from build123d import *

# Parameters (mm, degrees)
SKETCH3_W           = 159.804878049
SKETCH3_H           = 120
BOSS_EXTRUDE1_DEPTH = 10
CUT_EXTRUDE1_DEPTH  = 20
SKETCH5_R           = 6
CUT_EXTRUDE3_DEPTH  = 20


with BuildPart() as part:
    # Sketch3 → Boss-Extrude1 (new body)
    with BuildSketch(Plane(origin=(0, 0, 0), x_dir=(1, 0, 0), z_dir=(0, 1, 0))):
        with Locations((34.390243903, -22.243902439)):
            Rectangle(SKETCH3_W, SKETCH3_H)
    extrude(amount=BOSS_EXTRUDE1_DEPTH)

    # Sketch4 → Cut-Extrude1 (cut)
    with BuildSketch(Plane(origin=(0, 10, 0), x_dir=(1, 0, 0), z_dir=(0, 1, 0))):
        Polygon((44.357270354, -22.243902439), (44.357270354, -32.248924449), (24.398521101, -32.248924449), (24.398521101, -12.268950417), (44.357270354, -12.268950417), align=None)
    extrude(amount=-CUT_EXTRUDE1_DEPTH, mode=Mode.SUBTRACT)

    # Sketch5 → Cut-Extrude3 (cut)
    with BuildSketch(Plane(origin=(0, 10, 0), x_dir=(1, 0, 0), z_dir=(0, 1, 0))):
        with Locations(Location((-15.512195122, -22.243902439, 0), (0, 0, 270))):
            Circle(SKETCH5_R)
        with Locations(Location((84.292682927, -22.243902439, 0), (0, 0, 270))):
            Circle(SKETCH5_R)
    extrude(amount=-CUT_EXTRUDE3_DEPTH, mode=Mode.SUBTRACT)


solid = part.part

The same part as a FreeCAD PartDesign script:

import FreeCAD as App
import Part
import Sketcher
Q = App.Units.Quantity

doc = App.newDocument("Part")
params = doc.addObject("Spreadsheet::Sheet", "Params")
for row, (alias, value) in enumerate([
    ("sketch1_height", "120 mm"),
    ("pad1_length", "10 mm"),
    ("pocket1_length", "20 mm"),
    ("sketch3_diameter", "12 mm"),
    ("pocket2_length", "20 mm"),
], start=1):
    params.set(f"A{row}", alias)
    params.set(f"B{row}", "=" + value)
    params.setAlias(f"B{row}", alias)

body = doc.addObject("PartDesign::Body", "Body")

# Sketch on XZ plane
sketch1 = body.newObject("Sketcher::SketchObject", "Sketch")
sketch1.AttachmentSupport = (doc.getObject("XZ_Plane"), [""])
sketch1.MapMode = "FlatFace"
sketch1.addGeometry([
    Part.LineSegment(App.Vector(-46, -38, 0), App.Vector(-46, 82, 0)),
    Part.LineSegment(App.Vector(-46, 82, 0), App.Vector(114, 82, 0)),
    Part.LineSegment(App.Vector(114, 82, 0), App.Vector(114, -38, 0)),
    Part.LineSegment(App.Vector(114, -38, 0), App.Vector(-46, -38, 0)),
], False)
sketch1.addConstraint([
    Sketcher.Constraint("Coincident", 0, 2, 1, 1),
    Sketcher.Constraint("Coincident", 1, 2, 2, 1),
    Sketcher.Constraint("Coincident", 2, 2, 3, 1),
    Sketcher.Constraint("Coincident", 3, 2, 0, 1),
    Sketcher.Constraint("Vertical", 0),
    Sketcher.Constraint("Horizontal", 1),
    Sketcher.Constraint("Vertical", 2),
    Sketcher.Constraint("Horizontal", 3),
    Sketcher.Constraint("DistanceY", 0, 1, 0, 2, Q("120 mm")),
    Sketcher.Constraint("DistanceX", 1, 1, 1, 2, Q("159.804878 mm")),
    Sketcher.Constraint("DistanceX", 0, 2, -1, 1, Q("45.512195 mm")),
    Sketcher.Constraint("DistanceY", -1, 1, 0, 2, Q("82.243902 mm")),
])
sketch1.setExpression("Constraints[8]", "Params.sketch1_height")
pad1 = body.newObject("PartDesign::Pad", "Pad")
pad1.Profile = sketch1
pad1.setExpression("Length", "Params.pad1_length")
pad1.Reversed = True

# Sketch on XZ plane
sketch2 = body.newObject("Sketcher::SketchObject", "Sketch001")
sketch2.AttachmentSupport = (doc.getObject("XZ_Plane"), [""])
sketch2.MapMode = "FlatFace"
sketch2.AttachmentOffset = App.Placement(App.Vector(0, 0, -10), App.Rotation())
sketch2.addGeometry([
    Part.LineSegment(App.Vector(44, 32, 0), App.Vector(44, 12, 0)),
    Part.LineSegment(App.Vector(44, 12, 0), App.Vector(24, 12, 0)),
    Part.LineSegment(App.Vector(24, 12, 0), App.Vector(24, 32, 0)),
    Part.LineSegment(App.Vector(24, 32, 0), App.Vector(44, 32, 0)),
], False)
sketch2.addConstraint([
    Sketcher.Constraint("Coincident", 0, 2, 1, 1),
    Sketcher.Constraint("Coincident", 1, 2, 2, 1),
    Sketcher.Constraint("Coincident", 2, 2, 3, 1),
    Sketcher.Constraint("Coincident", 3, 2, 0, 1),
    Sketcher.Constraint("Vertical", 0),
    Sketcher.Constraint("Horizontal", 1),
    Sketcher.Constraint("Vertical", 2),
    Sketcher.Constraint("Horizontal", 3),
    Sketcher.Constraint("DistanceX", 1, 2, 1, 1, Q("19.958749 mm")),
    Sketcher.Constraint("DistanceY", 0, 2, 0, 1, Q("19.979974 mm")),
    Sketcher.Constraint("DistanceX", -1, 1, 0, 2, Q("44.35727 mm")),
    Sketcher.Constraint("DistanceY", -1, 1, 0, 2, Q("12.26895 mm")),
])
pocket1 = body.newObject("PartDesign::Pocket", "Pocket")
pocket1.Profile = sketch2
pocket1.setExpression("Length", "Params.pocket1_length")
pocket1.Reversed = True

# Sketch on XZ plane
sketch3 = body.newObject("Sketcher::SketchObject", "Sketch002")
sketch3.AttachmentSupport = (doc.getObject("XZ_Plane"), [""])
sketch3.MapMode = "FlatFace"
sketch3.AttachmentOffset = App.Placement(App.Vector(0, 0, -10), App.Rotation())
sketch3.addGeometry([
    Part.Circle(App.Vector(-16, 22, 0), App.Vector(0, 0, 1), 6),
    Part.Circle(App.Vector(84, 22, 0), App.Vector(0, 0, 1), 6),
], False)
sketch3.addConstraint([
    Sketcher.Constraint("Equal", 0, 1),
    Sketcher.Constraint("Horizontal", 0, 3, 1, 3),
    Sketcher.Constraint("Diameter", 0, Q("12 mm")),
    Sketcher.Constraint("DistanceX", 0, 3, 1, 3, Q("99.804878 mm")),
    Sketcher.Constraint("DistanceX", 0, 3, -1, 1, Q("15.512195 mm")),
    Sketcher.Constraint("DistanceY", -1, 1, 0, 3, Q("22.243902 mm")),
])
sketch3.setExpression("Constraints[2]", "Params.sketch3_diameter")
pocket2 = body.newObject("PartDesign::Pocket", "Pocket001")
pocket2.Profile = sketch3
pocket2.setExpression("Length", "Params.pocket2_length")
pocket2.Reversed = True

doc.recompute()
